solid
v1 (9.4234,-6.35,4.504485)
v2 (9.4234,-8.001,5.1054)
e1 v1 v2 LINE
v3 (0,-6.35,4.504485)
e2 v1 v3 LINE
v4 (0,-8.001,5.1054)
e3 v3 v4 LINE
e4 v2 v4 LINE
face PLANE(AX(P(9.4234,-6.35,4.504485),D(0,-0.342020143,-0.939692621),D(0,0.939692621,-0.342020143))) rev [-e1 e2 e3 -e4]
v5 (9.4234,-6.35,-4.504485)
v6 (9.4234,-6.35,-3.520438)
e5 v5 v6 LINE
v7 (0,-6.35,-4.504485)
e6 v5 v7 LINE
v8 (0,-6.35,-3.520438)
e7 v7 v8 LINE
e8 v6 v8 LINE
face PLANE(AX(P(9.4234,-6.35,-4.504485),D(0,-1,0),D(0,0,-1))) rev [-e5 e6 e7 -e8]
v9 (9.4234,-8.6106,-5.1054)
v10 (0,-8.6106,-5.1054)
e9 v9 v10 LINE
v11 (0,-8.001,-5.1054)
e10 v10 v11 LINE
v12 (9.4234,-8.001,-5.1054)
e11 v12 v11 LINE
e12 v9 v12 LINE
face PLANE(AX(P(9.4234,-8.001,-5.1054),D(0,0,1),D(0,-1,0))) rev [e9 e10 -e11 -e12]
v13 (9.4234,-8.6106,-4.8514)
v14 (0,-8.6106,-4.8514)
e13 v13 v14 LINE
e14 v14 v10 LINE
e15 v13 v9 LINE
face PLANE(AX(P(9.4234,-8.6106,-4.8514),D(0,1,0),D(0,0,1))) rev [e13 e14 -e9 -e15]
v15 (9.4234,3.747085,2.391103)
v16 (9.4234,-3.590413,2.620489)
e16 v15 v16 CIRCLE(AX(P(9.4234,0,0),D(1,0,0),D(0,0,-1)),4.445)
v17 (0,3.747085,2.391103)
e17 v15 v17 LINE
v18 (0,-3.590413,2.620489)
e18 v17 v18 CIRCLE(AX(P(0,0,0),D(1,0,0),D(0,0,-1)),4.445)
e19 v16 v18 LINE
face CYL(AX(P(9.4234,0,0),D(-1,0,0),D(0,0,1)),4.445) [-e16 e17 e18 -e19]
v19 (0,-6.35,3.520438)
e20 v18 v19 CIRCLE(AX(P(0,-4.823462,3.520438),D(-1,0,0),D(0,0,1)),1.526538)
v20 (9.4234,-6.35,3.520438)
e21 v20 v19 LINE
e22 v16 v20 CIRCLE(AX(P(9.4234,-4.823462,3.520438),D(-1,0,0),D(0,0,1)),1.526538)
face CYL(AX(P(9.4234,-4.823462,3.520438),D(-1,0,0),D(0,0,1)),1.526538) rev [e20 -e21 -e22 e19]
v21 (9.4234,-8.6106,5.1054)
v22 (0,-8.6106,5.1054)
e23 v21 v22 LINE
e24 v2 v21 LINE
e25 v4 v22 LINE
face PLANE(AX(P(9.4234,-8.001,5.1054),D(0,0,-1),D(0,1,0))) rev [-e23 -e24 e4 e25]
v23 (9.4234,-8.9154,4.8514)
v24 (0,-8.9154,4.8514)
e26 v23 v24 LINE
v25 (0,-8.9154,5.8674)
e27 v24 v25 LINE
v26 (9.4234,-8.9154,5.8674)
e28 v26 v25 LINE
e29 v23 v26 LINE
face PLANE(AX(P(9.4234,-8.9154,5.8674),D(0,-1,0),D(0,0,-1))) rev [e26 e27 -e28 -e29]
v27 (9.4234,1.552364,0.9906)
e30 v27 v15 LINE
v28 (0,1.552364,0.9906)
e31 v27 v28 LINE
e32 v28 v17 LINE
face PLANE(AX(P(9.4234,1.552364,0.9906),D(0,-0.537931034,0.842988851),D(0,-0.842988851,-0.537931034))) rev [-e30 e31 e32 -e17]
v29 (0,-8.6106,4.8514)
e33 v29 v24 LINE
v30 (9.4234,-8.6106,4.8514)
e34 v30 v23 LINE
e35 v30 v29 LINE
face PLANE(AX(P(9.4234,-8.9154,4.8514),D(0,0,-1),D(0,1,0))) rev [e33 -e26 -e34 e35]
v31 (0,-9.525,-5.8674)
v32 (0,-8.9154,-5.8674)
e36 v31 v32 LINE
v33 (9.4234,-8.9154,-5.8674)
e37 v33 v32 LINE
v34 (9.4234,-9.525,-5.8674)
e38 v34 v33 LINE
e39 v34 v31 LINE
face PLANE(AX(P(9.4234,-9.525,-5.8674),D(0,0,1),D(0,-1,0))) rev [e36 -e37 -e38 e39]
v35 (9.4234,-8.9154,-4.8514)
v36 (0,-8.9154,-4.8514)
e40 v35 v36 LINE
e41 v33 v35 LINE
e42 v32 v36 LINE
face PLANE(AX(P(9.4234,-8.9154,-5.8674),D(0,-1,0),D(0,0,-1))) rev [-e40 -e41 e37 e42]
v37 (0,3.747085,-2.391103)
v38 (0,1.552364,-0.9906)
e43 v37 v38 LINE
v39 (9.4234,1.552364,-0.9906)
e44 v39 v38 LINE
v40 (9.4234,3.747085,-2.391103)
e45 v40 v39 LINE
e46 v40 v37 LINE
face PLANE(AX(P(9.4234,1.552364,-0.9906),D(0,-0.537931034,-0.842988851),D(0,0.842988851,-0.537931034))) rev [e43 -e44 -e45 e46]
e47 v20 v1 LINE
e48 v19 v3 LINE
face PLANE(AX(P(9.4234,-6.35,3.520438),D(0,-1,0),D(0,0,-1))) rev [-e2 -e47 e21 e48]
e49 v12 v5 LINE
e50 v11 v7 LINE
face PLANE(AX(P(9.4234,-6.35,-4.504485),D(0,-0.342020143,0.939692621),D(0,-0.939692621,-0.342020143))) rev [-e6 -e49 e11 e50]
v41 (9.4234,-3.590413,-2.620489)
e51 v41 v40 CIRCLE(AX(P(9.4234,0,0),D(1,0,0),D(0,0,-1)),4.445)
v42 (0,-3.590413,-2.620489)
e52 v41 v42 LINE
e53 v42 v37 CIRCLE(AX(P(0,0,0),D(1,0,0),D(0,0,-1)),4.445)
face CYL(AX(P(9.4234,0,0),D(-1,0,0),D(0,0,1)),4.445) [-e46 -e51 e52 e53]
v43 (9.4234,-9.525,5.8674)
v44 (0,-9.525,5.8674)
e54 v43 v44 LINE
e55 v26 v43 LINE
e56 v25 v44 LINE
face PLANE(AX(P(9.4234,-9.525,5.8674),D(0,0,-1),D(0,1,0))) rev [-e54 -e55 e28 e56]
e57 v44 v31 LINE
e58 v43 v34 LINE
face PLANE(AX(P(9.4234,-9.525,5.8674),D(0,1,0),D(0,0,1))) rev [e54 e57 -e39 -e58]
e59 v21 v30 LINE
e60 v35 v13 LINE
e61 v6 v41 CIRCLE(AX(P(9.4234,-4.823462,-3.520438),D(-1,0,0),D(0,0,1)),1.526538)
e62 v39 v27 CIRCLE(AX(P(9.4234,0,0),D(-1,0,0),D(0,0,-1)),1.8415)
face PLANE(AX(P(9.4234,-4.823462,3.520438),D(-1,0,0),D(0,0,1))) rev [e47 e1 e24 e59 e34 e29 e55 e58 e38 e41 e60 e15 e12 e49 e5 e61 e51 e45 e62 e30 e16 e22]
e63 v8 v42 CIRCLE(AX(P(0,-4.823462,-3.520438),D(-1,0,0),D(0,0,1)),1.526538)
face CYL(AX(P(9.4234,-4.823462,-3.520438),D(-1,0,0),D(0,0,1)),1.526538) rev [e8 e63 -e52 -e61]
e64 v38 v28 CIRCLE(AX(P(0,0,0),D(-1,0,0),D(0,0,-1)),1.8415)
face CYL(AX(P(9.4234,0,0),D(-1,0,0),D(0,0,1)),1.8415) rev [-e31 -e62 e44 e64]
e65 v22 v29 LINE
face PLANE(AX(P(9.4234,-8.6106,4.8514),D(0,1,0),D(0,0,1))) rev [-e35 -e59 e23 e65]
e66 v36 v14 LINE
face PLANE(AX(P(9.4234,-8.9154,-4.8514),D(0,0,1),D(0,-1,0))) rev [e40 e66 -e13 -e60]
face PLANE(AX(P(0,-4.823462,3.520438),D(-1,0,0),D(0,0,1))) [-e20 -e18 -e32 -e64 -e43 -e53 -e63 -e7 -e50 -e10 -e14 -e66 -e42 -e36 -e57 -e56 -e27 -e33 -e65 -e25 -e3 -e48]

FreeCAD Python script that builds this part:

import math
import FreeCAD as App
import Part
import Sketcher
from FreeCAD import Vector
Q = App.Units.Quantity

doc = App.newDocument("Part")
body = doc.addObject("PartDesign::Body", "Body")

# Sketch on YZ plane
sketch1 = body.newObject("Sketcher::SketchObject", "Sketch")
sketch1.AttachmentSupport = (doc.getObject("YZ_Plane"), [""])
sketch1.MapMode = "FlatFace"
sketch1.addGeometry([
    Part.LineSegment(Vector(-9.53, 5.87, 0), Vector(-9.53, -5.87, 0)),  # 0
    Part.LineSegment(Vector(-9.53, -5.87, 0), Vector(-8.92, -5.87, 0)),  # 1
    Part.LineSegment(Vector(-8.92, -5.87, 0), Vector(-8.92, -4.85, 0)),  # 2
    Part.LineSegment(Vector(-8.92, -4.85, 0), Vector(-8.61, -4.85, 0)),  # 3
    Part.LineSegment(Vector(-8.61, -4.85, 0), Vector(-8.61, -5.11, 0)),  # 4
    Part.LineSegment(Vector(-8.61, -5.11, 0), Vector(-8, -5.11, 0)),  # 5
    Part.LineSegment(Vector(-8, -5.11, 0), Vector(-6.35, -4.5, 0)),  # 6
    Part.LineSegment(Vector(-6.35, -4.5, 0), Vector(-6.35, -3.52, 0)),  # 7
    Part.ArcOfCircle(Part.Circle(Vector(-4.82, -3.52, 0), Vector(0, 0, 1), 1.53), math.radians(36), math.radians(180)),  # 8
    Part.ArcOfCircle(Part.Circle(Vector(0, 0, 0), Vector(0, 0, 1), 4.45), math.radians(-144), math.radians(-33)),  # 9
    Part.LineSegment(Vector(3.75, -2.39, 0), Vector(1.55, -0.99, 0)),  # 10
    Part.ArcOfCircle(Part.Circle(Vector(0, 0, 0), Vector(0, 0, 1), 1.84), math.radians(33), math.radians(327)),  # 11
    Part.LineSegment(Vector(1.55, 0.99, 0), Vector(3.75, 2.39, 0)),  # 12
    Part.ArcOfCircle(Part.Circle(Vector(0, 0, 0), Vector(0, 0, 1), 4.45), math.radians(33), math.radians(144)),  # 13
    Part.ArcOfCircle(Part.Circle(Vector(-4.82, 3.52, 0), Vector(0, 0, 1), 1.53), math.radians(180), math.radians(324)),  # 14
    Part.LineSegment(Vector(-6.35, 3.52, 0), Vector(-6.35, 4.5, 0)),  # 15
    Part.LineSegment(Vector(-6.35, 4.5, 0), Vector(-8, 5.11, 0)),  # 16
    Part.LineSegment(Vector(-8, 5.11, 0), Vector(-8.61, 5.11, 0)),  # 17
    Part.LineSegment(Vector(-8.61, 5.11, 0), Vector(-8.61, 4.85, 0)),  # 18
    Part.LineSegment(Vector(-8.61, 4.85, 0), Vector(-8.92, 4.85, 0)),  # 19
    Part.LineSegment(Vector(-8.92, 4.85, 0), Vector(-8.92, 5.87, 0)),  # 20
    Part.LineSegment(Vector(-8.92, 5.87, 0), Vector(-9.53, 5.87, 0)),  # 21
], False)
sketch1.addConstraint([
    Sketcher.Constraint("Coincident", 0, 2, 1, 1),
    Sketcher.Constraint("Coincident", 1, 2, 2, 1),
    Sketcher.Constraint("Coincident", 2, 2, 3, 1),
    Sketcher.Constraint("Coincident", 3, 2, 4, 1),
    Sketcher.Constraint("Coincident", 4, 2, 5, 1),
    Sketcher.Constraint("Coincident", 5, 2, 6, 1),
    Sketcher.Constraint("Coincident", 6, 2, 7, 1),
    Sketcher.Constraint("Tangent", 7, 2, 8, 2),
    Sketcher.Constraint("Tangent", 8, 1, 9, 1),
    Sketcher.Constraint("Coincident", 9, 2, 10, 1),
    Sketcher.Constraint("Coincident", 10, 2, 11, 2),
    Sketcher.Constraint("Coincident", 11, 1, 12, 1),
    Sketcher.Constraint("Coincident", 12, 2, 13, 1),
    Sketcher.Constraint("Tangent", 13, 2, 14, 2),
    Sketcher.Constraint("Tangent", 14, 1, 15, 1),
    Sketcher.Constraint("Coincident", 15, 2, 16, 1),
    Sketcher.Constraint("Coincident", 16, 2, 17, 1),
    Sketcher.Constraint("Coincident", 17, 2, 18, 1),
    Sketcher.Constraint("Coincident", 18, 2, 19, 1),
    Sketcher.Constraint("Coincident", 19, 2, 20, 1),
    Sketcher.Constraint("Coincident", 20, 2, 21, 1),
    Sketcher.Constraint("Coincident", 21, 2, 0, 1),
    Sketcher.Constraint("Vertical", 0),
    Sketcher.Constraint("Horizontal", 1),
    Sketcher.Constraint("Vertical", 2),
    Sketcher.Constraint("Horizontal", 3),
    Sketcher.Constraint("Vertical", 4),
    Sketcher.Constraint("Horizontal", 5),
    Sketcher.Constraint("Vertical", 7),
    Sketcher.Constraint("Vertical", 15),
    Sketcher.Constraint("Horizontal", 17),
    Sketcher.Constraint("Vertical", 18),
    Sketcher.Constraint("Horizontal", 19),
    Sketcher.Constraint("Vertical", 20),
    Sketcher.Constraint("Horizontal", 21),
    Sketcher.Constraint("Coincident", 9, 3, -1, 1),
    Sketcher.Constraint("Coincident", 11, 3, -1, 1),
    Sketcher.Constraint("Coincident", 13, 3, -1, 1),
    Sketcher.Constraint("Equal", 9, 13),
    Sketcher.Constraint("Equal", 8, 14),
    Sketcher.Constraint("Symmetric", 6, 2, 15, 2, -1),
    Sketcher.Constraint("Symmetric", 5, 2, 16, 2, -1),
    Sketcher.Constraint("Symmetric", 3, 2, 18, 2, -1),
    Sketcher.Constraint("Symmetric", 1, 2, 20, 2, -1),
    Sketcher.Constraint("Vertical", 10, 2, 11, 1),
    Sketcher.Constraint("Vertical", 9, 2, 12, 2),
    Sketcher.Constraint("Equal", 1, 5),
    Sketcher.Constraint("Angle", 6, Q("20 deg")),
    Sketcher.Constraint("Radius", 9, Q("0.175 in")),
    Sketcher.Constraint("DistanceY", 2, 1, 2, 2, Q("0.04 in")),
    Sketcher.Constraint("DistanceY", 4, 2, 4, 1, Q("0.01 in")),
    Sketcher.Constraint("Radius", 8, Q("0.0600999 in")),
    Sketcher.Constraint("Radius", 11, Q("0.0725 in")),
    Sketcher.Constraint("DistanceX", 1, 1, 1, 2, Q("0.024 in")),
    Sketcher.Constraint("DistanceX", 3, 1, 3, 2, Q("0.012 in")),
    Sketcher.Constraint("DistanceY", 0, 2, 0, 1, Q("0.462 in")),
    Sketcher.Constraint("DistanceX", 6, 2, -1, 1, Q("0.25 in")),
    Sketcher.Constraint("DistanceX", 0, 2, -1, 1, Q("0.375 in")),
    Sketcher.Constraint("DistanceY", 10, 2, -1, 1, Q("0.039 in")),
    Sketcher.Constraint("DistanceX", 8, 1, 9, 2, 7.337498),
])
pad1 = body.newObject("PartDesign::Pad", "Pad")
pad1.Profile = sketch1
pad1.Length = Q("0.371 in")

doc.recompute()
